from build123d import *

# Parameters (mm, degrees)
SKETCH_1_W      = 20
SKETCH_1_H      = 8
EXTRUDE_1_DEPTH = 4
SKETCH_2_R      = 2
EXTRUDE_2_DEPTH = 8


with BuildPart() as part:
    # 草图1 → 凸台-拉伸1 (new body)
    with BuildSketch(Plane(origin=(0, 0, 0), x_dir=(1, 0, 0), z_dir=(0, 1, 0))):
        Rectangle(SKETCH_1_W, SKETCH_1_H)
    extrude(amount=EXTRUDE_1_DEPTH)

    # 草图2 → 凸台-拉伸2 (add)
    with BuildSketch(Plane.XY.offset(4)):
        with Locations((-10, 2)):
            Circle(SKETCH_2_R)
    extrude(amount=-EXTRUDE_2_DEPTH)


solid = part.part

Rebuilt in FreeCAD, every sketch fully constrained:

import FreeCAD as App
import Part
import Sketcher
Q = App.Units.Quantity


def add_polygon(sketch, points):
    """Adds a closed chain of lines whose ends are joined by coincident constraints."""
    first, n = sketch.GeometryCount, len(points)
    for a, b in zip(points, points[1:] + points[:1]):
        sketch.addGeometry(Part.LineSegment(App.Vector(*a, 0), App.Vector(*b, 0)), False)
    for i in range(n):
        sketch.addConstraint(Sketcher.Constraint("Coincident", first + i, 2, first + (i + 1) % n, 1))

doc = App.newDocument("Part")
body = doc.addObject("PartDesign::Body", "Body")

sketch1 = body.newObject("Sketcher::SketchObject", "Sketch")
sketch1.AttachmentSupport = (doc.getObject("XZ_Plane"), [""])
sketch1.MapMode = "FlatFace"
add_polygon(sketch1, [(-10, -4), (-10, 4), (10, 4), (10, -4)])
sketch1.addConstraint([
    Sketcher.Constraint("Vertical", 0),
    Sketcher.Constraint("Horizontal", 1),
    Sketcher.Constraint("Vertical", 2),
    Sketcher.Constraint("Horizontal", 3),
    Sketcher.Constraint("Symmetric", 0, 2, 2, 2, -1, 1),
    Sketcher.Constraint("DistanceX", 1, 1, 1, 2, Q("20 mm")),
    Sketcher.Constraint("DistanceY", 0, 1, 0, 2, Q("8 mm")),
])
pad1 = body.newObject("PartDesign::Pad", "Pad")
pad1.Profile = sketch1
pad1.Length = 4
pad1.Reversed = True

sketch2 = body.newObject("Sketcher::SketchObject", "Sketch001")
sketch2.AttachmentSupport = (doc.getObject("XY_Plane"), [""])
sketch2.MapMode = "FlatFace"
sketch2.AttachmentOffset = App.Placement(App.Vector(0, 0, 4), App.Rotation())
sketch2.addGeometry(Part.Circle(App.Vector(-10, 2, 0), App.Vector(0, 0, 1), 2), False)
sketch2.addConstraint([
    Sketcher.Constraint("Diameter", 0, Q("4 mm")),
    Sketcher.Constraint("DistanceX", 0, 3, -1, 1, Q("10 mm")),
    Sketcher.Constraint("DistanceY", -1, 1, 0, 3, Q("2 mm")),
])
pad2 = body.newObject("PartDesign::Pad", "Pad001")
pad2.Profile = sketch2
pad2.Length = 8
pad2.Reversed = True

doc.recompute()
